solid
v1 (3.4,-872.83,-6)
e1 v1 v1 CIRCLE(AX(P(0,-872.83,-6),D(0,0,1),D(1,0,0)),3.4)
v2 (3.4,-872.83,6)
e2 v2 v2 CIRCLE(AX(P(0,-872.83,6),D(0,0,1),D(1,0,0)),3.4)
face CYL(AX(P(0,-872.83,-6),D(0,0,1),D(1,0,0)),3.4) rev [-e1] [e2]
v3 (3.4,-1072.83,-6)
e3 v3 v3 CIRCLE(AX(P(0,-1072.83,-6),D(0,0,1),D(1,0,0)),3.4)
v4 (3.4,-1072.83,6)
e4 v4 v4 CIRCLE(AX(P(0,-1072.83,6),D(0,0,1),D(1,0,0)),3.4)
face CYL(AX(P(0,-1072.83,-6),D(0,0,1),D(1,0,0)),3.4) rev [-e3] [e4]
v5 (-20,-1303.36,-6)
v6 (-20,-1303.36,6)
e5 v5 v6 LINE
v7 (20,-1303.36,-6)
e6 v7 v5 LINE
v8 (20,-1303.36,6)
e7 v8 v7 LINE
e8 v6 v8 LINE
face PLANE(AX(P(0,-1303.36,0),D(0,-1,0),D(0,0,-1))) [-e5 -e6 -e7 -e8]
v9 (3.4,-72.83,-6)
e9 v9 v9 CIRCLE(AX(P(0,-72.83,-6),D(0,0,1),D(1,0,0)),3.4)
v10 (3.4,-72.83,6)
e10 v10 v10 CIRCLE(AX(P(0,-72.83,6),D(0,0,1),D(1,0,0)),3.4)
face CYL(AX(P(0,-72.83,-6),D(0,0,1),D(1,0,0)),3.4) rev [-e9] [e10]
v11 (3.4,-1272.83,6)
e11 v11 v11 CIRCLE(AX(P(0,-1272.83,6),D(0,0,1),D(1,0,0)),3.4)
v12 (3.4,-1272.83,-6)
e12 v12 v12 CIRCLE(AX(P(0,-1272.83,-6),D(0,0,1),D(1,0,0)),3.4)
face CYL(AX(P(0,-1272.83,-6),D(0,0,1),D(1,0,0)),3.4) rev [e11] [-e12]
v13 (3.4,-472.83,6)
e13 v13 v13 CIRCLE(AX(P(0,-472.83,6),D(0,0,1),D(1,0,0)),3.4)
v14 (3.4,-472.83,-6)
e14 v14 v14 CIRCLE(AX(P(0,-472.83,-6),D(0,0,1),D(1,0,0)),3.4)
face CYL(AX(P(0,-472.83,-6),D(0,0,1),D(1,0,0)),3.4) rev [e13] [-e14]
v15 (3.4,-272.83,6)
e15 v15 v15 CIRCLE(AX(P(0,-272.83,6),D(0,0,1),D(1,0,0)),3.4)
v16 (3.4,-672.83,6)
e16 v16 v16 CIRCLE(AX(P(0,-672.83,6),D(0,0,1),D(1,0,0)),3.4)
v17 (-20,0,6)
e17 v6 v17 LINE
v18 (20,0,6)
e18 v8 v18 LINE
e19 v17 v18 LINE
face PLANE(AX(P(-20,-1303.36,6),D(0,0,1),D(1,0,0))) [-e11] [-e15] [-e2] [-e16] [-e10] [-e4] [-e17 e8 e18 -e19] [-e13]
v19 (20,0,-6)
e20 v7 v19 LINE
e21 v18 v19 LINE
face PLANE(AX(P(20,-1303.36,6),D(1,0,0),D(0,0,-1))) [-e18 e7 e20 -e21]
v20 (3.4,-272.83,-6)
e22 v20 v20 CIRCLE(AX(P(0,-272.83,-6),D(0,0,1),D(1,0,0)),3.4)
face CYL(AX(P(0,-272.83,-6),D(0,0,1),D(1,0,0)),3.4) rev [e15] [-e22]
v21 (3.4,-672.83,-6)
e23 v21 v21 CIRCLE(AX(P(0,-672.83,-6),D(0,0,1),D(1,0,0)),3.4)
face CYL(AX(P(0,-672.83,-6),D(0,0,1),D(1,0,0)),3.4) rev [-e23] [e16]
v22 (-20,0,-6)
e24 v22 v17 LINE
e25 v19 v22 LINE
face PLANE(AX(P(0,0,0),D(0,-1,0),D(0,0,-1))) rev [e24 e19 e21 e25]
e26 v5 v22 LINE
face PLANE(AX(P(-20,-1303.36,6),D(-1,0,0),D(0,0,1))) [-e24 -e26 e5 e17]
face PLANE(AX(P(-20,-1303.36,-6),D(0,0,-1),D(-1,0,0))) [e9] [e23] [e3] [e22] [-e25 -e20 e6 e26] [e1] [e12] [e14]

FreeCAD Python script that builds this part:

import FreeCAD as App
import Part
import Sketcher

V = App.Vector


def add_polygon(sketch, points):
    """Adds a closed chain of lines whose ends are joined by coincident constraints."""
    first, n = sketch.GeometryCount, len(points)
    for a, b in zip(points, points[1:] + points[:1]):
        sketch.addGeometry(Part.LineSegment(App.Vector(*a, 0), App.Vector(*b, 0)), False)
    for i in range(n):
        sketch.addConstraint(Sketcher.Constraint("Coincident", first + i, 2, first + (i + 1) % n, 1))

doc = App.newDocument("Part")
body = doc.addObject("PartDesign::Body", "Body")

sketch1 = body.newObject("Sketcher::SketchObject", "Sketch")
sketch1.AttachmentSupport = (doc.getObject("XZ_Plane"), [""])
sketch1.MapMode = "FlatFace"
add_polygon(sketch1, [(-20, -6), (-20, 6), (20, 6), (20, -6)])
sketch1.addConstraint([
    Sketcher.Constraint("Vertical", 0),
    Sketcher.Constraint("Horizontal", 1),
    Sketcher.Constraint("Vertical", 2),
    Sketcher.Constraint("Horizontal", 3),
    Sketcher.Constraint("Symmetric", 0, 2, 2, 2, -1, 1),
    Sketcher.Constraint("DistanceX", 1, 1, 1, 2, 40.0),
    Sketcher.Constraint("DistanceY", 0, 1, 0, 2, 12.0),
])
pad1 = body.newObject("PartDesign::Pad", "Pad")
pad1.Profile = sketch1
pad1.Length = 1303.36

sketch2 = body.newObject("Sketcher::SketchObject", "Sketch001")
sketch2.AttachmentSupport = (doc.getObject("XY_Plane"), [""])
sketch2.MapMode = "FlatFace"
sketch2.AttachmentOffset = App.Placement(V(0, 0, 6), App.Rotation())
sketch2.addGeometry([
    Part.Circle(V(0, -1072.8, 0), V(0, 0, 1), 3.4),
    Part.Circle(V(0, -872.8, 0), V(0, 0, 1), 3.4),
    Part.Circle(V(0, -472.8, 0), V(0, 0, 1), 3.4),
    Part.Circle(V(0, -272.8, 0), V(0, 0, 1), 3.4),
    Part.Circle(V(0, -72.8, 0), V(0, 0, 1), 3.4),
    Part.Circle(V(0, -672.8, 0), V(0, 0, 1), 3.4),
    Part.Circle(V(0, -1272.8, 0), V(0, 0, 1), 3.4),
], False)
sketch2.addConstraint([
    Sketcher.Constraint("Equal", 0, 1),
    Sketcher.Constraint("Equal", 1, 2),
    Sketcher.Constraint("Equal", 2, 3),
    Sketcher.Constraint("Equal", 3, 4),
    Sketcher.Constraint("Equal", 4, 5),
    Sketcher.Constraint("Equal", 5, 6),
    Sketcher.Constraint("PointOnObject", 0, 3, -2),
    Sketcher.Constraint("PointOnObject", 1, 3, -2),
    Sketcher.Constraint("PointOnObject", 2, 3, -2),
    Sketcher.Constraint("PointOnObject", 3, 3, -2),
    Sketcher.Constraint("PointOnObject", 4, 3, -2),
    Sketcher.Constraint("PointOnObject", 5, 3, -2),
    Sketcher.Constraint("PointOnObject", 6, 3, -2),
    Sketcher.Constraint("Diameter", 0, 6.8),
    Sketcher.Constraint("DistanceY", 0, 3, 1, 3, 200.0),
    Sketcher.Constraint("DistanceY", 1, 3, 2, 3, 400.0),
    Sketcher.Constraint("DistanceY", 2, 3, 3, 3, 200.0),
    Sketcher.Constraint("DistanceY", 3, 3, 4, 3, 200.0),
    Sketcher.Constraint("DistanceY", 1, 3, 5, 3, 200.0),
    Sketcher.Constraint("DistanceY", 6, 3, 0, 3, 200.0),
    Sketcher.Constraint("DistanceY", 0, 3, -1, 1, 1072.83),
])
pocket1 = body.newObject("PartDesign::Pocket", "Pocket")
pocket1.Profile = sketch2
pocket1.Type = "ThroughAll"

doc.recompute()
